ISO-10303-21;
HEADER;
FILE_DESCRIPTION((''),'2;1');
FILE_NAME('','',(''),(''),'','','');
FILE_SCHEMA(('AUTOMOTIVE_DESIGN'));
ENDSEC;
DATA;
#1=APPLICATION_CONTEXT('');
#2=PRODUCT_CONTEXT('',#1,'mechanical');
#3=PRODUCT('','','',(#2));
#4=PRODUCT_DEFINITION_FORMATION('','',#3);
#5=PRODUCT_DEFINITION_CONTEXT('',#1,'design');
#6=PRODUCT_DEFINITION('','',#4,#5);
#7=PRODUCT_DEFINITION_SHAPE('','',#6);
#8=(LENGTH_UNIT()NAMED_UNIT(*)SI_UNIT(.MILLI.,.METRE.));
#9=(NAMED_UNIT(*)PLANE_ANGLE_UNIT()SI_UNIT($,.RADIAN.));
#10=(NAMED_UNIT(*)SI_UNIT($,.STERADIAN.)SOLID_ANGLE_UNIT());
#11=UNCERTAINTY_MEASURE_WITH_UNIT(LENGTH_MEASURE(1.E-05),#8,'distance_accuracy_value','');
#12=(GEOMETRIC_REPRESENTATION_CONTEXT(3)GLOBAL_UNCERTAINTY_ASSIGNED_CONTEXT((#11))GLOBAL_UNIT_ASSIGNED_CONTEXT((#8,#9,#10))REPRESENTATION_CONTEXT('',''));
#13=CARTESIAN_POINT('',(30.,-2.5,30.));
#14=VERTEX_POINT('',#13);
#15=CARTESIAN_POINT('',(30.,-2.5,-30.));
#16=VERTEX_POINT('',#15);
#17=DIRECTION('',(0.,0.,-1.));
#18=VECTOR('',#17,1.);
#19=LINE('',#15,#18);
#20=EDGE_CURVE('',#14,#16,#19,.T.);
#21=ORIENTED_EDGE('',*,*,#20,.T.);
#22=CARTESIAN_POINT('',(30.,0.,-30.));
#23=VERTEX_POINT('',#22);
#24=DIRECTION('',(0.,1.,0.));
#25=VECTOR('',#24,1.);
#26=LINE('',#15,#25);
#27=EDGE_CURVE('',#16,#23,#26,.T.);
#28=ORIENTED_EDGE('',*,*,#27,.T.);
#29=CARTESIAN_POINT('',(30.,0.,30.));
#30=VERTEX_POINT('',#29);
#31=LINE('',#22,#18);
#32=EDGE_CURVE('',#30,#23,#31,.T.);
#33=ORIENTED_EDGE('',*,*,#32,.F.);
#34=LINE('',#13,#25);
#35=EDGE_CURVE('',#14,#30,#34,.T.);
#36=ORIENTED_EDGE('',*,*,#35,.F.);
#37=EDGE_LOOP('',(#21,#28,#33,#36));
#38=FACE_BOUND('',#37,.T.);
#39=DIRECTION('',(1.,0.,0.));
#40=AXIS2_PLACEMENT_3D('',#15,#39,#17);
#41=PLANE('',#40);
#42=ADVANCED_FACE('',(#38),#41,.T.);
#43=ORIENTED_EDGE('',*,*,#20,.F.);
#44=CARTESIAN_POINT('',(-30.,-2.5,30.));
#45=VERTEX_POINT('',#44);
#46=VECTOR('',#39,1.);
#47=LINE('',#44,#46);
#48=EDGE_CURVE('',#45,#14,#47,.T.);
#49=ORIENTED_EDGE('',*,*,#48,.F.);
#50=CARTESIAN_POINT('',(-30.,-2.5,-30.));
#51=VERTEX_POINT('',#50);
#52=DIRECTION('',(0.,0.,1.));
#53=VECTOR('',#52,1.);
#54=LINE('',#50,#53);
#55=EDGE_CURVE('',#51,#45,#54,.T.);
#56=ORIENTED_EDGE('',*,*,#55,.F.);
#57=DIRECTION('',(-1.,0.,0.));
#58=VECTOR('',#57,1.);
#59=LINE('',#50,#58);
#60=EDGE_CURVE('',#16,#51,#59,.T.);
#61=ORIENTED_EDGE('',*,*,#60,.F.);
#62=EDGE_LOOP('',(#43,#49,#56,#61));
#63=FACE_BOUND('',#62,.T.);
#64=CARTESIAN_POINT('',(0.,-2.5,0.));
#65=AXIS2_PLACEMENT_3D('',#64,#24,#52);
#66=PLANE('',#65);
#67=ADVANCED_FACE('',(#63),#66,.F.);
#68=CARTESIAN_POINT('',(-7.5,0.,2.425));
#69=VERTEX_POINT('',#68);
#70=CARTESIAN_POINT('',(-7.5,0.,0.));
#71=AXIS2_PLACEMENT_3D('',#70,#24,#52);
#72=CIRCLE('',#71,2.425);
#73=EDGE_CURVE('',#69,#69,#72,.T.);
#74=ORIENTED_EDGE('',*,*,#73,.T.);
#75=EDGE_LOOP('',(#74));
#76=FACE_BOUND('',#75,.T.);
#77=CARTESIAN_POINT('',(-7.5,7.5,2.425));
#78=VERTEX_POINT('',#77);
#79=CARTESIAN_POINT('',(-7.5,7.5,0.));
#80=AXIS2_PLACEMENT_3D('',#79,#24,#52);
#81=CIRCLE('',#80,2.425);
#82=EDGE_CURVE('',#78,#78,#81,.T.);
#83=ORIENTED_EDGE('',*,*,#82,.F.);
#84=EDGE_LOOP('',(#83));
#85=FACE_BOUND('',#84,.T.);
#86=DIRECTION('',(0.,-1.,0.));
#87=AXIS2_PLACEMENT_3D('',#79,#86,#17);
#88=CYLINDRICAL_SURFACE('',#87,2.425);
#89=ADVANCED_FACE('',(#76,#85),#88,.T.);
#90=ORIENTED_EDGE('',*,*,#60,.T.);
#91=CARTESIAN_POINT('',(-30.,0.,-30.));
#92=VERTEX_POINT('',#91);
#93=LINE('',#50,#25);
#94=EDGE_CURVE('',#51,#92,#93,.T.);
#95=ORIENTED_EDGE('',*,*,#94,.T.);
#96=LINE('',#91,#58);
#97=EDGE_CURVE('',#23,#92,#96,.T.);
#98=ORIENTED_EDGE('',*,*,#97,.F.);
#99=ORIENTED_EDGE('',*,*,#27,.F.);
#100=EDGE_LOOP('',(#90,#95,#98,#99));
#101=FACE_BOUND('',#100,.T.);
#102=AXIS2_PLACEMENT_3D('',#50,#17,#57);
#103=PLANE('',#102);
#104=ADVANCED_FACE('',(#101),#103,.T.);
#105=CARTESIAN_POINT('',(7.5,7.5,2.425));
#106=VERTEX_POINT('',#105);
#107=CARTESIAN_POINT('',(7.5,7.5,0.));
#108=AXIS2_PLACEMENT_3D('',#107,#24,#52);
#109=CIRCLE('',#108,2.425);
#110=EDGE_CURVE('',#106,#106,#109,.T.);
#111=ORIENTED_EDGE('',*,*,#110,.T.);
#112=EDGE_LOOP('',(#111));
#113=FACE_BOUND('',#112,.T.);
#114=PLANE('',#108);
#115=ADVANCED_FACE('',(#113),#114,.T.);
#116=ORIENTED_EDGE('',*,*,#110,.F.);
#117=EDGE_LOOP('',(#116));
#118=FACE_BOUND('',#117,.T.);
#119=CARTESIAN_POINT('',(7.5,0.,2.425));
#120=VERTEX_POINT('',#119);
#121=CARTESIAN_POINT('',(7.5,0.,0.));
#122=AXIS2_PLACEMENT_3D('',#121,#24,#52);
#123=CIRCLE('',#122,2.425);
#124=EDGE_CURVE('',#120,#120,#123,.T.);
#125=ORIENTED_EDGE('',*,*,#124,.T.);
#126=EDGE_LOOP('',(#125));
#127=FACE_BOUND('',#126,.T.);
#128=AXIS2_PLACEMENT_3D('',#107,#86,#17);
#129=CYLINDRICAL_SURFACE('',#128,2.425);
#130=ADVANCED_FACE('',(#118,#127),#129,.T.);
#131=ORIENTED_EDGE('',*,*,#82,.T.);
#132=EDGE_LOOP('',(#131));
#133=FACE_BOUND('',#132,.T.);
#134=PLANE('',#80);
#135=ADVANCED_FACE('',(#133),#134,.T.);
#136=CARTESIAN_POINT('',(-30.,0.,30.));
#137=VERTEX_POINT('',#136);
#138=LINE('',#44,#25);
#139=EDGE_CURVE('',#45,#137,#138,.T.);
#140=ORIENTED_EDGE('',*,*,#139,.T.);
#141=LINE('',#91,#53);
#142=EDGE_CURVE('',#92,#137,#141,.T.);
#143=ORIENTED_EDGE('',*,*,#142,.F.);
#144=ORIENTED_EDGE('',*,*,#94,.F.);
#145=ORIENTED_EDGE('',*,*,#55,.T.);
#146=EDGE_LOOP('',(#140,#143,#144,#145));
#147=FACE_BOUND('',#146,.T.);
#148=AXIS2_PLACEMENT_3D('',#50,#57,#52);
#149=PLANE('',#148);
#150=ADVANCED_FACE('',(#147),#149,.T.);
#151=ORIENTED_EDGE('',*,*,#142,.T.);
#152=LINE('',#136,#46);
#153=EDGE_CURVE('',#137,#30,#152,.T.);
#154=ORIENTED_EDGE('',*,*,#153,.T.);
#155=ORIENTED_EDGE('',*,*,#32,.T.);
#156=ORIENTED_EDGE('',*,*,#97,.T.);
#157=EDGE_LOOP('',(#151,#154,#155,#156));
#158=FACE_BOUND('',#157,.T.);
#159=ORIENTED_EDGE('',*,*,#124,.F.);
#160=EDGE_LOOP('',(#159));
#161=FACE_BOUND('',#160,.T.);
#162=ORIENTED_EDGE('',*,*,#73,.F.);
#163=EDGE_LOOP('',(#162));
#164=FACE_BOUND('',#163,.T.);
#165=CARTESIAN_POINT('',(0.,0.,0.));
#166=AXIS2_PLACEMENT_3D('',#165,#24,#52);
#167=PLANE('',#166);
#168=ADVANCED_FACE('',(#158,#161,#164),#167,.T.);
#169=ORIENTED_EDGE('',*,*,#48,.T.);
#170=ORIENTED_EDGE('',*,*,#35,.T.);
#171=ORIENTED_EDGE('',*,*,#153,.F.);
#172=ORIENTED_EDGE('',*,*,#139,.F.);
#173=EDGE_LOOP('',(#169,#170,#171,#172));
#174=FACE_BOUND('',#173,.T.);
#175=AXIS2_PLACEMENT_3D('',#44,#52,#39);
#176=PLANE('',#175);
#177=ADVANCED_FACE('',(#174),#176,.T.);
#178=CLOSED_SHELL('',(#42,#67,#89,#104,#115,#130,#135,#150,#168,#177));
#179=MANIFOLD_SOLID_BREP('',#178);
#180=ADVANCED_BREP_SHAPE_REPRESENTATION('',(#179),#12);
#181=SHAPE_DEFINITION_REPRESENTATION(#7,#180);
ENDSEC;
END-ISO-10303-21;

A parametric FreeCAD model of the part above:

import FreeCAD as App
import Part
import Sketcher

V = App.Vector


def add_polygon(sketch, points):
    """Adds a closed chain of lines whose ends are joined by coincident constraints."""
    first, n = sketch.GeometryCount, len(points)
    for a, b in zip(points, points[1:] + points[:1]):
        sketch.addGeometry(Part.LineSegment(App.Vector(*a, 0), App.Vector(*b, 0)), False)
    for i in range(n):
        sketch.addConstraint(Sketcher.Constraint("Coincident", first + i, 2, first + (i + 1) % n, 1))

doc = App.newDocument("Part")
body = doc.addObject("PartDesign::Body", "Body")

# Sketch on XZ plane
sketch1 = body.newObject("Sketcher::SketchObject", "Sketch")
sketch1.AttachmentSupport = (doc.getObject("XZ_Plane"), [""])
sketch1.MapMode = "FlatFace"
sketch1.addGeometry(Part.Circle(V(-7.5, 0, 0), V(0, 0, 1), 2.425), False)
sketch1.addConstraint([
    Sketcher.Constraint("PointOnObject", 0, 3, -1),
    Sketcher.Constraint("Diameter", 0, 4.85),
    Sketcher.Constraint("DistanceX", 0, 3, -1, 1, 7.5),
])
pad1 = body.newObject("PartDesign::Pad", "Pad")
pad1.Profile = sketch1
pad1.Length = 7.5
pad1.Reversed = True
body2 = doc.addObject("PartDesign::Body", "Body001")

# Sketch on XZ plane
sketch2 = body2.newObject("Sketcher::SketchObject", "Sketch001")
sketch2.AttachmentSupport = (doc.getObject("XZ_Plane001"), [""])
sketch2.MapMode = "FlatFace"
sketch2.addGeometry(Part.Circle(V(7.5, 0, 0), V(0, 0, 1), 2.425), False)
sketch2.addConstraint([
    Sketcher.Constraint("PointOnObject", 0, 3, -1),
    Sketcher.Constraint("Diameter", 0, 4.85),
    Sketcher.Constraint("DistanceX", -1, 1, 0, 3, 7.5),
])
pad2 = body2.newObject("PartDesign::Pad", "Pad001")
pad2.Profile = sketch2
pad2.Length = 7.5
pad2.Reversed = True
body.AllowCompound = True
doc.recompute()

boolean = body.newObject("PartDesign::Boolean", "Boolean")
boolean.Type = "Fuse"
boolean.addObjects([body2])

# Sketch on XZ plane
sketch3 = body.newObject("Sketcher::SketchObject", "Sketch002")
sketch3.AttachmentSupport = (doc.getObject("XZ_Plane"), [""])
sketch3.MapMode = "FlatFace"
add_polygon(sketch3, [(-30, -30), (-30, 30), (30, 30), (30, -30)])  # lines 0-3
sketch3.addConstraint([
    Sketcher.Constraint("Vertical", 0),
    Sketcher.Constraint("Horizontal", 1),
    Sketcher.Constraint("Vertical", 2),
    Sketcher.Constraint("Horizontal", 3),
    Sketcher.Constraint("Symmetric", 0, 2, 2, 2, -1, 1),
    Sketcher.Constraint("Equal", 3, 0),
    Sketcher.Constraint("DistanceX", 1, 1, 1, 2, 60.0),
])
pad3 = body.newObject("PartDesign::Pad", "Pad002")
pad3.Profile = sketch3
pad3.Length = 2.5

doc.recompute()
